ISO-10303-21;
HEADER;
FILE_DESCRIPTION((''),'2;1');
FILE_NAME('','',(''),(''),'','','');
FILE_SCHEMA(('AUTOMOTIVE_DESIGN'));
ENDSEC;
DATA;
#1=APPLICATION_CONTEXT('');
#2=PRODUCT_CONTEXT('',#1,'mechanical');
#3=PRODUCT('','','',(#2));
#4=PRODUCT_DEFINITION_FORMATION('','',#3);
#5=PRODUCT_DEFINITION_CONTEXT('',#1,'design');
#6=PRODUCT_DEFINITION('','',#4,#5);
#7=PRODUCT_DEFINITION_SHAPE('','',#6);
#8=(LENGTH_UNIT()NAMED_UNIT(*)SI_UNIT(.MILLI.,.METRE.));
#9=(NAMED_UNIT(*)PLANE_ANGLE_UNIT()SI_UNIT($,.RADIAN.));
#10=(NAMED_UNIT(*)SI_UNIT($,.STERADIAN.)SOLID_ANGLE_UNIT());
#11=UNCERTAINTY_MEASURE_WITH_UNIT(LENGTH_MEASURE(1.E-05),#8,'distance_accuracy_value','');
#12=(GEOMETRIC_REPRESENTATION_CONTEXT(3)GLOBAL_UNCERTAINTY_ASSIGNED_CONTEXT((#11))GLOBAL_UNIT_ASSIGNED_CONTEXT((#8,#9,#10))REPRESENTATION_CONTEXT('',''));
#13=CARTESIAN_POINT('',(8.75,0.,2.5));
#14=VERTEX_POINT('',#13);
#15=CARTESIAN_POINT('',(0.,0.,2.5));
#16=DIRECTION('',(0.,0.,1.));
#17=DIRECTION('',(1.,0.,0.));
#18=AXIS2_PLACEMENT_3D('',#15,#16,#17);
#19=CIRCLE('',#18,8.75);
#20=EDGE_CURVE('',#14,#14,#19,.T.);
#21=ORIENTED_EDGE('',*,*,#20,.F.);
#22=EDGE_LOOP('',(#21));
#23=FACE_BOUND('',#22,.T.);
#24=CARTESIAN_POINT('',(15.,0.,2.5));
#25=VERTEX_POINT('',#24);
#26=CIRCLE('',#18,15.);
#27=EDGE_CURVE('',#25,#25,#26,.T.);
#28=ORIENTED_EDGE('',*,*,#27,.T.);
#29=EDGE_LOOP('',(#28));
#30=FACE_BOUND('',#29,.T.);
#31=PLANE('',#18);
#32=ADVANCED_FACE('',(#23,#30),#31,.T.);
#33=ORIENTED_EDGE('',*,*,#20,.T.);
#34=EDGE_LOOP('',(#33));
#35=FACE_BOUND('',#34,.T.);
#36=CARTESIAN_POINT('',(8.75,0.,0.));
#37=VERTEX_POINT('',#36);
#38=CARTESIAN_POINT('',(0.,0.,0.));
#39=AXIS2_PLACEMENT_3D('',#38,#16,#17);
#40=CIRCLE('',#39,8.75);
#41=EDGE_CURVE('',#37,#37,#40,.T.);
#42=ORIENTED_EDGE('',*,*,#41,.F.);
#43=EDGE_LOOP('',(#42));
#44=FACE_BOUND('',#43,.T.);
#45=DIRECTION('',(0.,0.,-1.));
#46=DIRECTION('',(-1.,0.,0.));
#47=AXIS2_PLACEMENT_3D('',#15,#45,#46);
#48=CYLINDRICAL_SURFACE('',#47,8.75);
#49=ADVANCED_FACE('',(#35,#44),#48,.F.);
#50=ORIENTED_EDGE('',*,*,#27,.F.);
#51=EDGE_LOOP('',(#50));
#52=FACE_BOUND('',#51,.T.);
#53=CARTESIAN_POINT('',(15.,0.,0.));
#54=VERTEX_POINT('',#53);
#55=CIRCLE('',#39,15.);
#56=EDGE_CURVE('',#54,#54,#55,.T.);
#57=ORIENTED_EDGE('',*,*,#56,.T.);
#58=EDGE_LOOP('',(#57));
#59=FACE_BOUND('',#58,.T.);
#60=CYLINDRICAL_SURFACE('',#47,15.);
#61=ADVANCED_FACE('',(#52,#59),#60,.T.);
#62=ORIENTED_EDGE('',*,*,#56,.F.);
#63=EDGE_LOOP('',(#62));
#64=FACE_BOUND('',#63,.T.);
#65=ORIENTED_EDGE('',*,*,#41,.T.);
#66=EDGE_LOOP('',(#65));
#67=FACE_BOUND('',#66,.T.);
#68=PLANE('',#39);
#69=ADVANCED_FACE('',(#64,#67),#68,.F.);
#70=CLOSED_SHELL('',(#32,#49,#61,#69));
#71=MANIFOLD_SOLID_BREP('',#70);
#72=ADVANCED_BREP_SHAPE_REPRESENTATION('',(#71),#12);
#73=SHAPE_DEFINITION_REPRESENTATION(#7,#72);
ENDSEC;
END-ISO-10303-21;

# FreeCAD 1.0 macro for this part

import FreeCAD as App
import Part
import Sketcher
from FreeCAD import Vector
Q = App.Units.Quantity

doc = App.newDocument("Part")
body = doc.addObject("PartDesign::Body", "Body")

# Sketch on XY plane
sketch1 = doc.addObject("Sketcher::SketchObject", "Sketch")
body.addObject(sketch1)
sketch1.AttachmentSupport = (doc.XY_Plane, [""])
sketch1.MapMode = "FlatFace"
sketch1.addGeometry([
    Part.Circle(Vector(0, 0, 0), Vector(0, 0, 1), 15),
    Part.Circle(Vector(0, 0, 0), Vector(0, 0, 1), 9),
], False)
sketch1.addConstraint([
    Sketcher.Constraint("Coincident", 0, 3, -1, 1),
    Sketcher.Constraint("Coincident", 1, 3, -1, 1),
    Sketcher.Constraint("Diameter", 0, Q("30 mm")),
    Sketcher.Constraint("Diameter", 1, Q("17.5 mm")),
])
pad1 = doc.addObject("PartDesign::Pad", "Pad")
body.addObject(pad1)
pad1.Profile = sketch1
pad1.Length = 2.5

doc.recompute()
